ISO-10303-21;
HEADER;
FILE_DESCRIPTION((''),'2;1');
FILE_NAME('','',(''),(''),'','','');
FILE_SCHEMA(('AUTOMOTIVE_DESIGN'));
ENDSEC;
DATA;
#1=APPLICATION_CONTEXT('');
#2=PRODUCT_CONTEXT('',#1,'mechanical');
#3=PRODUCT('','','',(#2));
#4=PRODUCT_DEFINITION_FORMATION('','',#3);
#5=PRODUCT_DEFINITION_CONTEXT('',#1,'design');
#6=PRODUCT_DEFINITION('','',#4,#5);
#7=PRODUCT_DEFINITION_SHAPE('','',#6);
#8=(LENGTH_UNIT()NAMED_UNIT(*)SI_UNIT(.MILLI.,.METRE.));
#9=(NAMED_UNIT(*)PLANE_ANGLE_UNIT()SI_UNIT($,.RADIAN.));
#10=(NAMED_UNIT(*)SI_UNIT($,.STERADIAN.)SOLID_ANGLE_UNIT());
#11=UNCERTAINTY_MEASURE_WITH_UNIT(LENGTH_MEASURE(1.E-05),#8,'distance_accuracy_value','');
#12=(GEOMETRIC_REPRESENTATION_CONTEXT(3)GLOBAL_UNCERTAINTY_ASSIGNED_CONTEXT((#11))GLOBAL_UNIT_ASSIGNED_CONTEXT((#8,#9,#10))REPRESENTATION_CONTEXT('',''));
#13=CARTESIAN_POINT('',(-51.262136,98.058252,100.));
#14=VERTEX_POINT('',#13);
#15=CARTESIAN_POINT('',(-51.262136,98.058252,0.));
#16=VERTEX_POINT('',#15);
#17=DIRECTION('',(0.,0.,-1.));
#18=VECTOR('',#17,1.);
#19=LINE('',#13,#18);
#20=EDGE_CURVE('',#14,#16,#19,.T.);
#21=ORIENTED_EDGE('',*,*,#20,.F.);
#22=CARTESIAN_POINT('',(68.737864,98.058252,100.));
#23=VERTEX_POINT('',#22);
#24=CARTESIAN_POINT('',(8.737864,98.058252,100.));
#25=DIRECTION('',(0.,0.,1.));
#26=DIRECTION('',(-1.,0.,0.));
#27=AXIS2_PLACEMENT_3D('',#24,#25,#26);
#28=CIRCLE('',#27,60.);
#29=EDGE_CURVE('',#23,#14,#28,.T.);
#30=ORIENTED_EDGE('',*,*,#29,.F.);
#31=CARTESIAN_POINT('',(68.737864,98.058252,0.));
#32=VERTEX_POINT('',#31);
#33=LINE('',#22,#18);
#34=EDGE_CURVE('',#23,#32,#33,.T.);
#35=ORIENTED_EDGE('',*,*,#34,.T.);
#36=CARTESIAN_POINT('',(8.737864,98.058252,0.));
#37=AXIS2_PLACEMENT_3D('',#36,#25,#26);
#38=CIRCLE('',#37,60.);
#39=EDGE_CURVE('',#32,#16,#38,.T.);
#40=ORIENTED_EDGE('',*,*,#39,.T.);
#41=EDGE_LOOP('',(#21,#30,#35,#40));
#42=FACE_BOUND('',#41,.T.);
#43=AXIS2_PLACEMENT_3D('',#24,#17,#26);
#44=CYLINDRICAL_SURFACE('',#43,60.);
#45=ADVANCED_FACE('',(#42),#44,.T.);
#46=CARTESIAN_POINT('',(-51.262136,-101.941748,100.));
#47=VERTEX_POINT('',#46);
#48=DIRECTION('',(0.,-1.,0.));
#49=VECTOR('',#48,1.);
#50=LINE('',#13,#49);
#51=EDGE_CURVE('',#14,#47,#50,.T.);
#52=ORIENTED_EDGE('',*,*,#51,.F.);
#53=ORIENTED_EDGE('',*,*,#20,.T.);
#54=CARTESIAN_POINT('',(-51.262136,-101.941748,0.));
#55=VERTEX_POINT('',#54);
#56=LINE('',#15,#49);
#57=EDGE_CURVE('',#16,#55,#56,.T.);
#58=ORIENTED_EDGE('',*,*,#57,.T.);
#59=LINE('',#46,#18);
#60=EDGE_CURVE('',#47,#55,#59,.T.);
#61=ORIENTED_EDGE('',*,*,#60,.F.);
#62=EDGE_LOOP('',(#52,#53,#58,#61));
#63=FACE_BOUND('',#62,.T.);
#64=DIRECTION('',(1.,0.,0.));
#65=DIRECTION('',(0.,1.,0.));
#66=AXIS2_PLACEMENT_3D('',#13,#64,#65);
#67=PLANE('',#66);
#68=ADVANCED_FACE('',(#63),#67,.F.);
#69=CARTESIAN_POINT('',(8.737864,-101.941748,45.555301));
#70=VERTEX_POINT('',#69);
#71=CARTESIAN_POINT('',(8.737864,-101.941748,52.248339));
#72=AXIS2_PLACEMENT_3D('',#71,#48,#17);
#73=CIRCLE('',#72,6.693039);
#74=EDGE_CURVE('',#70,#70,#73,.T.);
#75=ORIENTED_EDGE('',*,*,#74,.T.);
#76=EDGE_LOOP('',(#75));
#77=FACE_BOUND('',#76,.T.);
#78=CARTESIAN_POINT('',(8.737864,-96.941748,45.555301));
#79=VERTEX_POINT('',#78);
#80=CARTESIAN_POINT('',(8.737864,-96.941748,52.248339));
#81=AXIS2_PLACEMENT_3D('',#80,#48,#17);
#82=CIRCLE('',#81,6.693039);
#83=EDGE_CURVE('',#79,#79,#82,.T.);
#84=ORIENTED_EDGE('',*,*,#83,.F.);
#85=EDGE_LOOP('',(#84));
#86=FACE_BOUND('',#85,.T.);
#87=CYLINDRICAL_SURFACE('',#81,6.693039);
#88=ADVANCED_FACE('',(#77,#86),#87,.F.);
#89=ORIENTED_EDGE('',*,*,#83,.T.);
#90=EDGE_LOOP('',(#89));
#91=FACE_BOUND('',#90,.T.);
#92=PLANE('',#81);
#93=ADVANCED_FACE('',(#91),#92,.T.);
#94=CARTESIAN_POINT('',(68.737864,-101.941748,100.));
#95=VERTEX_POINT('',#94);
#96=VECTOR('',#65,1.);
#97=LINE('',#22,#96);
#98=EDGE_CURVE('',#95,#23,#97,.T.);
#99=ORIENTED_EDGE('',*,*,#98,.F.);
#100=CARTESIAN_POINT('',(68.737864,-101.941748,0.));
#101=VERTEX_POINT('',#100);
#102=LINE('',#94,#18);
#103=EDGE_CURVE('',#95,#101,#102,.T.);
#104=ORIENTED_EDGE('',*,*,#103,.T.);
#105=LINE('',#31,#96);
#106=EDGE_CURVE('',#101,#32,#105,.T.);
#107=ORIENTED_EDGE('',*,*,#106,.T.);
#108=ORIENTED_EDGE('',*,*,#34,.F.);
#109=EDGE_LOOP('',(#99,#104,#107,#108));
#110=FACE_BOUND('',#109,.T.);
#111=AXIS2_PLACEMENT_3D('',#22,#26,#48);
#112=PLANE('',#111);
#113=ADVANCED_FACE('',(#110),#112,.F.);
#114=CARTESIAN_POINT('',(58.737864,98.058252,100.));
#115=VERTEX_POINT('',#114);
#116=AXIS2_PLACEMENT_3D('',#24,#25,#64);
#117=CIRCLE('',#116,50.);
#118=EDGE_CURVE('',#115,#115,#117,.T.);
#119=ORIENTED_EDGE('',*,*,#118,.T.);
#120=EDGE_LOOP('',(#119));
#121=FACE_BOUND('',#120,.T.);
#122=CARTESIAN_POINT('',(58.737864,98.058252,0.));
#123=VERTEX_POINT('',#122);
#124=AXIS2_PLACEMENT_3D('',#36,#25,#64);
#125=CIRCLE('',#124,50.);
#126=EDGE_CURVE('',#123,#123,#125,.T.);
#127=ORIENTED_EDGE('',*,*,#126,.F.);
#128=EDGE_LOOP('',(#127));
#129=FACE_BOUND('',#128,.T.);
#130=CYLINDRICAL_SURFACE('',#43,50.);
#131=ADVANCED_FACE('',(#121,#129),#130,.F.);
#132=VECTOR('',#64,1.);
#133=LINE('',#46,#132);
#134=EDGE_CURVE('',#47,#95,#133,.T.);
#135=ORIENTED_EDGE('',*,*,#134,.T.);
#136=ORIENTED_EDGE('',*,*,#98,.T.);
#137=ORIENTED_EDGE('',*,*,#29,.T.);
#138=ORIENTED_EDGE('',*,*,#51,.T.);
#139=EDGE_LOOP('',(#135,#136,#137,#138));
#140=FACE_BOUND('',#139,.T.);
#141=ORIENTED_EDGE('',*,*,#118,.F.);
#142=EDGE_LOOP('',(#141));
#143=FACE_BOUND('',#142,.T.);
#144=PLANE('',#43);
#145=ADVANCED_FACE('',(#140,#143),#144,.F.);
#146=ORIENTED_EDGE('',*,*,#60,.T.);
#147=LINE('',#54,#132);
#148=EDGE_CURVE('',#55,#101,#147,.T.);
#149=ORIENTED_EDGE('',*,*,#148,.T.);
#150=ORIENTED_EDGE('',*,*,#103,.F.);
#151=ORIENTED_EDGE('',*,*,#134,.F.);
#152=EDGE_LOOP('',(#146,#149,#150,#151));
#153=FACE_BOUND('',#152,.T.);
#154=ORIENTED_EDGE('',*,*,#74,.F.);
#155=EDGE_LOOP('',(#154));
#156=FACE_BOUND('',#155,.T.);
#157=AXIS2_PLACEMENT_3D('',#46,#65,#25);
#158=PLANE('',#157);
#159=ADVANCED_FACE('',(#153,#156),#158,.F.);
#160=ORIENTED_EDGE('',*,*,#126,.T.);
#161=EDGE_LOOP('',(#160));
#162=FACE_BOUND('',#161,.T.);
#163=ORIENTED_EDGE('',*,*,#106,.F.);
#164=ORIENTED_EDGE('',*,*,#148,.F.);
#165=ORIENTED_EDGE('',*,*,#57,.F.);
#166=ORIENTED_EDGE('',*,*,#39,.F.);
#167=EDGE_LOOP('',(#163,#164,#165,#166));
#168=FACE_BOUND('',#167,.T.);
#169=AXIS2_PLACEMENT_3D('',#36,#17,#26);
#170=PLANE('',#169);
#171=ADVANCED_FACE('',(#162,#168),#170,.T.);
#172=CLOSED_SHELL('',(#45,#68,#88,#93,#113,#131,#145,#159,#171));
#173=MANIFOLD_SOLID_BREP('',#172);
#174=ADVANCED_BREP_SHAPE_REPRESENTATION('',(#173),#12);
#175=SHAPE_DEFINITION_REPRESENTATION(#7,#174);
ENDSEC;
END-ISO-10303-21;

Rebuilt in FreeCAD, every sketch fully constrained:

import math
import FreeCAD as App
import Part
import Sketcher
from FreeCAD import Vector

doc = App.newDocument("Part")
body = doc.addObject("PartDesign::Body", "Body")

# Sketch on XY plane
sketch1 = body.newObject("Sketcher::SketchObject", "Sketch")
sketch1.AttachmentSupport = (doc.getObject("XY_Plane"), [""])
sketch1.MapMode = "FlatFace"
sketch1.addGeometry([
    Part.LineSegment(Vector(-51.262136, 98.058252, 0), Vector(-51.262136, -101.941748, 0)),  # 0
    Part.LineSegment(Vector(-51.262136, -101.941748, 0), Vector(68.737864, -101.941748, 0)),  # 1
    Part.LineSegment(Vector(68.737864, -101.941748, 0), Vector(68.737864, 98.058252, 0)),  # 2
    Part.ArcOfCircle(Part.Circle(Vector(8.737864, 98.058252, 0), Vector(0, 0, 1), 60), math.radians(0), math.radians(180)),  # 3
    Part.Circle(Vector(8.737864, 98.058252, 0), Vector(0, 0, 1), 50),  # 4
], False)
sketch1.addConstraint([
    Sketcher.Constraint("Coincident", 0, 2, 1, 1),
    Sketcher.Constraint("Coincident", 1, 2, 2, 1),
    Sketcher.Constraint("Tangent", 2, 2, 3, 1),
    Sketcher.Constraint("Tangent", 3, 2, 0, 1),
    Sketcher.Constraint("Vertical", 0),
    Sketcher.Constraint("Horizontal", 1),
    Sketcher.Constraint("Vertical", 2),
    Sketcher.Constraint("Coincident", 4, 3, 3, 3),
    Sketcher.Constraint("Diameter", 4, 100.0),
    Sketcher.Constraint("Radius", 3, 60.0),
    Sketcher.Constraint("DistanceY", 0, 2, 0, 1, 200.0),
    Sketcher.Constraint("DistanceX", -1, 1, 3, 3, 8.737864),
    Sketcher.Constraint("DistanceY", -1, 1, 3, 3, 98.058252),
])
pad1 = body.newObject("PartDesign::Pad", "Pad")
pad1.Profile = sketch1
pad1.Length = 100

# Sketch on XZ plane
sketch2 = body.newObject("Sketcher::SketchObject", "Sketch001")
sketch2.AttachmentSupport = (doc.getObject("XZ_Plane"), [""])
sketch2.MapMode = "FlatFace"
sketch2.AttachmentOffset = App.Placement(Vector(0, 0, 101.941748), App.Rotation())
sketch2.addGeometry(Part.Circle(Vector(8.737864, 52.248339, 0), Vector(0, 0, 1), 6.693039), False)
sketch2.addConstraint([
    Sketcher.Constraint("Diameter", 0, 13.386077),
    Sketcher.Constraint("DistanceY", -1, 1, 0, 3, 52.248339),
    Sketcher.Constraint("DistanceX", -1, 1, 0, 3, 8.737864),
])
pocket1 = body.newObject("PartDesign::Pocket", "Pocket")
pocket1.Profile = sketch2
pocket1.Length = 5

doc.recompute()
